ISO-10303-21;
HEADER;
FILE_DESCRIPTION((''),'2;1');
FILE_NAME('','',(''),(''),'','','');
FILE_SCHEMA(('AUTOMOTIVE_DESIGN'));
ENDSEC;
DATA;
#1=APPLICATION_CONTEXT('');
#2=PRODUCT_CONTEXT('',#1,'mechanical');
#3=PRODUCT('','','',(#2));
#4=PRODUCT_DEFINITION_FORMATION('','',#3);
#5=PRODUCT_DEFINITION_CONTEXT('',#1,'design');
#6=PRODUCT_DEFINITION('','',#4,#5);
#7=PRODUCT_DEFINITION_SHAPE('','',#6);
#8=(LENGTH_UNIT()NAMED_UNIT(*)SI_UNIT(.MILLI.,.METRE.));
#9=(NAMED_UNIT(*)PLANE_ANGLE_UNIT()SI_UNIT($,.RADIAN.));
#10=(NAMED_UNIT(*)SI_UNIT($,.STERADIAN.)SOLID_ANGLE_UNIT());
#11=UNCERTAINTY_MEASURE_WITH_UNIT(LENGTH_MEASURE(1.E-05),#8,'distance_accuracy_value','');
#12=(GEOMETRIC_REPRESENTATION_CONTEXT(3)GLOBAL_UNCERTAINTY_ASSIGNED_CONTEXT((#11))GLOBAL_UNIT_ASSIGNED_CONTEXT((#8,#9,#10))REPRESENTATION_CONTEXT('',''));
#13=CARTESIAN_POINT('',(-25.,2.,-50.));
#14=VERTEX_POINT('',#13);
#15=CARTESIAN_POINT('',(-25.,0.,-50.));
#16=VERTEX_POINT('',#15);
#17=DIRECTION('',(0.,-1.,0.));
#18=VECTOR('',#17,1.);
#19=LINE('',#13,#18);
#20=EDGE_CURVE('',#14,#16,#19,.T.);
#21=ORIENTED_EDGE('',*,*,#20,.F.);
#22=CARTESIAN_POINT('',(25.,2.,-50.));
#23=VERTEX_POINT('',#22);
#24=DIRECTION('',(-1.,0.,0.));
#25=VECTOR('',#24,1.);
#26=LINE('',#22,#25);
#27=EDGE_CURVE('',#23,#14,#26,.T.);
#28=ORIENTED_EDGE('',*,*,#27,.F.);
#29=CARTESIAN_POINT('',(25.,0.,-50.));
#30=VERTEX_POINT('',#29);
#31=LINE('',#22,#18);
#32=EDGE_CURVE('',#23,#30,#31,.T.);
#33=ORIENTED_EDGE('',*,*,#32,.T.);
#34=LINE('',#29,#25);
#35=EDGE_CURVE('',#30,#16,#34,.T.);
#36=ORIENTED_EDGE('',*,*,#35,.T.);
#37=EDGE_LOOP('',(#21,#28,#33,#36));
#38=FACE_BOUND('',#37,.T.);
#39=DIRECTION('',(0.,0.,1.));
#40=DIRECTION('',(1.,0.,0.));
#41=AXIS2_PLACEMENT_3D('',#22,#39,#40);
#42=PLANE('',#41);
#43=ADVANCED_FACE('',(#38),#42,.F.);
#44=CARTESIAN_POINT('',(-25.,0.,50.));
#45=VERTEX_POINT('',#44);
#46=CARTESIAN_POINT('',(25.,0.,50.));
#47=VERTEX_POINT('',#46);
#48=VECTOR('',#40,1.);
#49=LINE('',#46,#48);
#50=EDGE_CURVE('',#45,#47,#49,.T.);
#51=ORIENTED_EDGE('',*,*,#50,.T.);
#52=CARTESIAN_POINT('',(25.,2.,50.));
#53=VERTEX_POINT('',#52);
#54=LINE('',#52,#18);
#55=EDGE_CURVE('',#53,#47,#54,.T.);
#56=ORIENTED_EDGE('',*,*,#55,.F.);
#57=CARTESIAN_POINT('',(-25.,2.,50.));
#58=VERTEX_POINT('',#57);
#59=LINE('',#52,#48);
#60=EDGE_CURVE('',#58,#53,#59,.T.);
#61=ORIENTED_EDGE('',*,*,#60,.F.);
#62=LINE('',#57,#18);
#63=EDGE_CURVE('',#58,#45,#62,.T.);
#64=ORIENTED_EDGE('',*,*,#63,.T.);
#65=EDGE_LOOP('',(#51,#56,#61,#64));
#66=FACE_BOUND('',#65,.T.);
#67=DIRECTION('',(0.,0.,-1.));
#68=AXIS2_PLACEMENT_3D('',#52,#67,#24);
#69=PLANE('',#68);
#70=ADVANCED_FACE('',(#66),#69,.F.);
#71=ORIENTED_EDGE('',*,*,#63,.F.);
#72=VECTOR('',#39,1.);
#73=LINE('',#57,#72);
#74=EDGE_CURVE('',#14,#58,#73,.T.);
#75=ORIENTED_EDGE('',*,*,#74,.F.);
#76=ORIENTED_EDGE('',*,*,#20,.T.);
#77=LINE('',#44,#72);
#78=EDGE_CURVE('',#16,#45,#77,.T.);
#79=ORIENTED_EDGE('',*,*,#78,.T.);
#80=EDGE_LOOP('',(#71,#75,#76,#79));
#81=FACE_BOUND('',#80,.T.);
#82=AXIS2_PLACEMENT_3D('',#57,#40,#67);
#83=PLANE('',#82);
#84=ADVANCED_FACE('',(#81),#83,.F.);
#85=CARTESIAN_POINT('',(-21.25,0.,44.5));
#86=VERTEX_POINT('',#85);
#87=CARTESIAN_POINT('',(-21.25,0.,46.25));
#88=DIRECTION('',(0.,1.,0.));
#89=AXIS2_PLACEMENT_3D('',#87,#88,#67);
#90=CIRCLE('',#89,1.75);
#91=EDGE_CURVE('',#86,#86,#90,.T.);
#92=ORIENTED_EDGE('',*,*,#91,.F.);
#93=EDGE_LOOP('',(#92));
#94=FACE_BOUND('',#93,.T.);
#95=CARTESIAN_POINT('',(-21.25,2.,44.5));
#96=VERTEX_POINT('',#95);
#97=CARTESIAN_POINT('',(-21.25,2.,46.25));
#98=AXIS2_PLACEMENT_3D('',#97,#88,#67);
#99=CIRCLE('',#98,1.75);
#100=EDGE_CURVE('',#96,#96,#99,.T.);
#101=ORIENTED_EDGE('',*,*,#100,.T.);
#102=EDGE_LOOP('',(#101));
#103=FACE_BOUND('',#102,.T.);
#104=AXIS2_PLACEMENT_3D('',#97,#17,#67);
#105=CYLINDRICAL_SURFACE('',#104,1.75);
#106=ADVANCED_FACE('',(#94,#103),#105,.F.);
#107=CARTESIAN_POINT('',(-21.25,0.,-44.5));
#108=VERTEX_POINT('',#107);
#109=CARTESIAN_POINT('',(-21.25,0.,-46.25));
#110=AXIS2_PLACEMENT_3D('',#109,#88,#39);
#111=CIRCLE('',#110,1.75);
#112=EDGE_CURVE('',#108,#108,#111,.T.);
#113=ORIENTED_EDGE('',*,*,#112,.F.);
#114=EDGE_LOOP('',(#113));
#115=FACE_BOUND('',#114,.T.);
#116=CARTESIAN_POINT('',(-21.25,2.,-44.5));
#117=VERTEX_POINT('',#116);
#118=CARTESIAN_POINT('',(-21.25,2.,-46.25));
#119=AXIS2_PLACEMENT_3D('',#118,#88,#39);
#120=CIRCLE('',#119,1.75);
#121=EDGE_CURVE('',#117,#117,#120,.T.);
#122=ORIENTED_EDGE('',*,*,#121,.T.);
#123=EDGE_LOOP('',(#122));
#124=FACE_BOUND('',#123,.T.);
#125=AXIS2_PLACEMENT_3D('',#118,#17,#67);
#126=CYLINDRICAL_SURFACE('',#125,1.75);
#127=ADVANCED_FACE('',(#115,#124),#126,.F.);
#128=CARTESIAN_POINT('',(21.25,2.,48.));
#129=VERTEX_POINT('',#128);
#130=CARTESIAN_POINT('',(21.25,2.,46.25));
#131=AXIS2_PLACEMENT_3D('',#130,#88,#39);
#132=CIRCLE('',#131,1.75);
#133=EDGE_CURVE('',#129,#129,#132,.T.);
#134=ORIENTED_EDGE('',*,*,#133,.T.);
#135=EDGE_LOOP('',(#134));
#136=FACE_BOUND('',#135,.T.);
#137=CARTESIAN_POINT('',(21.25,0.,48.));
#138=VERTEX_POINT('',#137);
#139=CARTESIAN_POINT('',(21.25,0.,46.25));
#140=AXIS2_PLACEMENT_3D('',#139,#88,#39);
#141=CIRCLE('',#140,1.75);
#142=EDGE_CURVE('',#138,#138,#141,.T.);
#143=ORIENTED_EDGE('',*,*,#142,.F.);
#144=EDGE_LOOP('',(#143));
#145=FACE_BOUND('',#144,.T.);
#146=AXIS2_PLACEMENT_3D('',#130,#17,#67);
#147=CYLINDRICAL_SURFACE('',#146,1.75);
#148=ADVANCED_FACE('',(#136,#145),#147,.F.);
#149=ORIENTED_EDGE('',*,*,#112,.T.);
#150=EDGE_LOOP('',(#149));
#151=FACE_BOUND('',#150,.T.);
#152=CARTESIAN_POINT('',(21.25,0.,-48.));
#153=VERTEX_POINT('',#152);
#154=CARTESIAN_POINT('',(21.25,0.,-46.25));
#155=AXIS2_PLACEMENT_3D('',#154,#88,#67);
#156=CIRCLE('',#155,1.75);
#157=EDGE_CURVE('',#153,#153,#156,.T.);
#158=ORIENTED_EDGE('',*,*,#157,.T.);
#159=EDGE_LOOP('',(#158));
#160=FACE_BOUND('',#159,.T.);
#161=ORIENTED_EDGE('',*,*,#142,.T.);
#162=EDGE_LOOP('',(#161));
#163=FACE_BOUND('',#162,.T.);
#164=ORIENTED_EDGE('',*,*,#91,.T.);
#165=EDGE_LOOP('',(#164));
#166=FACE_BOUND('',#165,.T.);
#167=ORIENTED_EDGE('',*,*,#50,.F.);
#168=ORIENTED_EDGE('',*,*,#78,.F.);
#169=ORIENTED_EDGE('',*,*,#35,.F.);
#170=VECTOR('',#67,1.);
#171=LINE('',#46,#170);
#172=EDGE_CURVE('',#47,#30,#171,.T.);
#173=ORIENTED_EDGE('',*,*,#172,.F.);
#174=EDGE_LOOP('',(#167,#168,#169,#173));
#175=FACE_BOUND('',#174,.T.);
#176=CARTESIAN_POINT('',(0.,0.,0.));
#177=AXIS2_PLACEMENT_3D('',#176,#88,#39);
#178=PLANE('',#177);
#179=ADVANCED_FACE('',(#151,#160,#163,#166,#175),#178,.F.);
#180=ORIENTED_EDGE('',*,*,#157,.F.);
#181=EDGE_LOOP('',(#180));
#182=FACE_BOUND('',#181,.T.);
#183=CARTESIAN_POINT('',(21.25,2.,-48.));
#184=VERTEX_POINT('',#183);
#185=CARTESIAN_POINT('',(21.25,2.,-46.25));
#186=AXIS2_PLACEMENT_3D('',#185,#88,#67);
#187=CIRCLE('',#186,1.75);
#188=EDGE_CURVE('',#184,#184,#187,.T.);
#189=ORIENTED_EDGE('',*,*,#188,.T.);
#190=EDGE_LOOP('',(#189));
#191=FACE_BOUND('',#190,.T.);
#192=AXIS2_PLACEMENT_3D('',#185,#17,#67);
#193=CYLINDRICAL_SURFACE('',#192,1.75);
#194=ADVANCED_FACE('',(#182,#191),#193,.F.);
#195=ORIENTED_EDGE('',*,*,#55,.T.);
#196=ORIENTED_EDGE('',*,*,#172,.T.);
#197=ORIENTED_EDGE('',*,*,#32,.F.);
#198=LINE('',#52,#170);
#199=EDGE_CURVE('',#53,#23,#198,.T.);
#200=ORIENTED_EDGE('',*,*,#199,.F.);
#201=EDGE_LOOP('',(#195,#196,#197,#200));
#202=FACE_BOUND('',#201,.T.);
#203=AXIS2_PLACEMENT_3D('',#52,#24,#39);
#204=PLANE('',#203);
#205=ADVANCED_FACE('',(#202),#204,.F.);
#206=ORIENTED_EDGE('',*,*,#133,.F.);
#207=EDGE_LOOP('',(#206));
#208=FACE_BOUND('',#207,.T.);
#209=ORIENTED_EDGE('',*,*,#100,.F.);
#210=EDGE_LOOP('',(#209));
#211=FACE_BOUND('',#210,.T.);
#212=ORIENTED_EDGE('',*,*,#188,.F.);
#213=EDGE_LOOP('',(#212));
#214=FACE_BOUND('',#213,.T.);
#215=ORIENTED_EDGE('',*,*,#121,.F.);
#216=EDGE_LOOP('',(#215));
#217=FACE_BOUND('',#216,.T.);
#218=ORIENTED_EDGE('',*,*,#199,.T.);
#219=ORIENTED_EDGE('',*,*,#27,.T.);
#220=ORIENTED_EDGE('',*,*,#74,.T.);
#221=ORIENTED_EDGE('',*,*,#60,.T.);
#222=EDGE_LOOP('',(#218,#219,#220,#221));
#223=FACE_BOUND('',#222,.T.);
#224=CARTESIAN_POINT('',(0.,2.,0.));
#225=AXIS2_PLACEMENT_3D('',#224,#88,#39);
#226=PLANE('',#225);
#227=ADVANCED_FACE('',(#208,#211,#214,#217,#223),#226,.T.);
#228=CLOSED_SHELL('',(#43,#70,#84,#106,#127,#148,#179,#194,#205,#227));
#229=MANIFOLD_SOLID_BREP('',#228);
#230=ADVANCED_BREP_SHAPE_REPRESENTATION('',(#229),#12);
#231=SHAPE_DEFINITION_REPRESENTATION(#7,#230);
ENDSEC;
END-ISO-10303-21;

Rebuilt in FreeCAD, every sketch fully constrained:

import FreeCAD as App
import Part
import Sketcher
from FreeCAD import Vector

doc = App.newDocument("Part")
body = doc.addObject("PartDesign::Body", "Body")

# Sketch on XZ plane
sketch1 = doc.addObject("Sketcher::SketchObject", "Sketch")
body.addObject(sketch1)
sketch1.AttachmentSupport = (doc.XZ_Plane, [""])
sketch1.MapMode = "FlatFace"
sketch1.addGeometry([
    Part.LineSegment(Vector(-25, -50, 0), Vector(-25, 50, 0)),  # 0
    Part.LineSegment(Vector(-25, 50, 0), Vector(25, 50, 0)),  # 1
    Part.LineSegment(Vector(25, 50, 0), Vector(25, -50, 0)),  # 2
    Part.LineSegment(Vector(25, -50, 0), Vector(-25, -50, 0)),  # 3
    Part.Circle(Vector(-21.2, 46.2, 0), Vector(0, 0, 1), 1.8),  # 4
    Part.Circle(Vector(21.2, 46.2, 0), Vector(0, 0, 1), 1.8),  # 5
    Part.Circle(Vector(-21.2, -46.2, 0), Vector(0, 0, 1), 1.8),  # 6
    Part.Circle(Vector(21.2, -46.2, 0), Vector(0, 0, 1), 1.8),  # 7
], False)
sketch1.addConstraint([
    Sketcher.Constraint("Coincident", 0, 2, 1, 1),
    Sketcher.Constraint("Coincident", 1, 2, 2, 1),
    Sketcher.Constraint("Coincident", 2, 2, 3, 1),
    Sketcher.Constraint("Coincident", 3, 2, 0, 1),
    Sketcher.Constraint("Vertical", 0),
    Sketcher.Constraint("Horizontal", 1),
    Sketcher.Constraint("Vertical", 2),
    Sketcher.Constraint("Horizontal", 3),
    Sketcher.Constraint("Equal", 4, 5),
    Sketcher.Constraint("Equal", 5, 6),
    Sketcher.Constraint("Equal", 6, 7),
    Sketcher.Constraint("Symmetric", 5, 3, 6, 3, -1, 1),
    Sketcher.Constraint("Symmetric", 4, 3, 7, 3, -1, 1),
    Sketcher.Constraint("Symmetric", 0, 2, 2, 2, -1, 1),
    Sketcher.Constraint("Symmetric", 4, 3, 5, 3, -2),
    Sketcher.Constraint("Diameter", 4, 3.5),
    Sketcher.Constraint("DistanceX", 1, 1, 1, 2, 50.0),
    Sketcher.Constraint("DistanceY", 0, 1, 0, 2, 100.0),
    Sketcher.Constraint("DistanceX", 4, 3, 5, 3, 42.5),
    Sketcher.Constraint("DistanceY", 6, 3, 4, 3, 92.5),
])
pad1 = doc.addObject("PartDesign::Pad", "Pad")
body.addObject(pad1)
pad1.Profile = sketch1
pad1.Length = 2
pad1.Reversed = True

doc.recompute()
